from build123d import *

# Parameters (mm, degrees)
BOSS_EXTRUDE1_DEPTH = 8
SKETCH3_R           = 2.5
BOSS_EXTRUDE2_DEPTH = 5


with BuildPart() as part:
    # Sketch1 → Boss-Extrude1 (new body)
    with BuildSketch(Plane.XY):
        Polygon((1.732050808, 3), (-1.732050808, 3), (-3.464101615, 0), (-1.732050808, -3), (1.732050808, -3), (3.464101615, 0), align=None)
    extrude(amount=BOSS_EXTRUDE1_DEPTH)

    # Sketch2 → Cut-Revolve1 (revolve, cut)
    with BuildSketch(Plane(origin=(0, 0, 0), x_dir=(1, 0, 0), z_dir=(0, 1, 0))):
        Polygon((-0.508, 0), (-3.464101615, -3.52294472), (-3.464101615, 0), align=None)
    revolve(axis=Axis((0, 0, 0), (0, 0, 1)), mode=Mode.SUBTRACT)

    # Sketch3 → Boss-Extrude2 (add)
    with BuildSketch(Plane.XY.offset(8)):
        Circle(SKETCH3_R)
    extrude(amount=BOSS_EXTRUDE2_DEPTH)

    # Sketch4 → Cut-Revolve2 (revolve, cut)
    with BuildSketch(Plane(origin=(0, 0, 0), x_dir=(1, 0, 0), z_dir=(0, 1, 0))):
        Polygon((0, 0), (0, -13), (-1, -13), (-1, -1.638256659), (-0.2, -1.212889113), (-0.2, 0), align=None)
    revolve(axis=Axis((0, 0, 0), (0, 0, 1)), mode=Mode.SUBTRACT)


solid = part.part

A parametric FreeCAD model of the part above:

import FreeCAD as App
import Part
import Sketcher
Q = App.Units.Quantity

doc = App.newDocument("Part")
params = doc.addObject("Spreadsheet::Sheet", "Params")
for row, (alias, value) in enumerate([
    ("pad1_length", "8 mm"),
    ("groove_angle", "360 deg"),
    ("sketch3_diameter", "5 mm"),
    ("pad2_length", "5 mm"),
    ("sketch4_width", "1 mm"),
    ("sketch4_height", "13 mm"),
    ("sketch4_width2", "0.2 mm"),
    ("groove2_angle", "360 deg"),
], start=1):
    params.set(f"A{row}", alias)
    params.set(f"B{row}", "=" + value)
    params.setAlias(f"B{row}", alias)

body = doc.addObject("PartDesign::Body", "Body")

# Sketch on XY plane
sketch1 = doc.addObject("Sketcher::SketchObject", "Sketch")
body.addObject(sketch1)
sketch1.AttachmentSupport = (doc.XY_Plane, [""])
sketch1.MapMode = "FlatFace"
sketch1.addGeometry([
    Part.LineSegment(App.Vector(1.7, 3, 0), App.Vector(-1.7, 3, 0)),  # 0
    Part.LineSegment(App.Vector(-1.7, 3, 0), App.Vector(-3.5, 0, 0)),  # 1
    Part.LineSegment(App.Vector(-3.5, 0, 0), App.Vector(-1.7, -3, 0)),  # 2
    Part.LineSegment(App.Vector(-1.7, -3, 0), App.Vector(1.7, -3, 0)),  # 3
    Part.LineSegment(App.Vector(1.7, -3, 0), App.Vector(3.5, 0, 0)),  # 4
    Part.LineSegment(App.Vector(3.5, 0, 0), App.Vector(1.7, 3, 0)),  # 5
], False)
sketch1.addConstraint([
    Sketcher.Constraint("Coincident", 0, 2, 1, 1),
    Sketcher.Constraint("Coincident", 1, 2, 2, 1),
    Sketcher.Constraint("Coincident", 2, 2, 3, 1),
    Sketcher.Constraint("Coincident", 3, 2, 4, 1),
    Sketcher.Constraint("Coincident", 4, 2, 5, 1),
    Sketcher.Constraint("Coincident", 5, 2, 0, 1),
    Sketcher.Constraint("Horizontal", 0),
    Sketcher.Constraint("Horizontal", 3),
    Sketcher.Constraint("Symmetric", 0, 2, 3, 2, -1, 1),
    Sketcher.Constraint("Symmetric", 1, 2, 4, 2, -1, 1),
    Sketcher.Constraint("PointOnObject", 1, 2, -1),
    Sketcher.Constraint("Parallel", 2, 5),
    Sketcher.Constraint("Vertical", 0, 2, 2, 2),
    Sketcher.Constraint("Angle", 1, Q("-120 deg")),
    Sketcher.Constraint("DistanceY", -1, 1, 0, 2, Q("3 mm")),
    Sketcher.Constraint("DistanceX", 0, 2, 0, 1, Q("3.464102 mm")),
])
pad1 = doc.addObject("PartDesign::Pad", "Pad")
body.addObject(pad1)
pad1.Profile = sketch1
pad1.setExpression("Length", "Params.pad1_length")

# Sketch on XZ plane
sketch2 = doc.addObject("Sketcher::SketchObject", "Sketch001")
body.addObject(sketch2)
sketch2.AttachmentSupport = (doc.XZ_Plane, [""])
sketch2.MapMode = "FlatFace"
sketch2.addGeometry([
    Part.LineSegment(App.Vector(-3.5, 3.5, 0), App.Vector(-0.5, 0, 0)),
    Part.LineSegment(App.Vector(-0.5, 0, 0), App.Vector(-3.5, 0, 0)),
    Part.LineSegment(App.Vector(-3.5, 0, 0), App.Vector(-3.5, 3.5, 0)),
], False)
sketch2.addConstraint([
    Sketcher.Constraint("Coincident", 0, 2, 1, 1),
    Sketcher.Constraint("Coincident", 1, 2, 2, 1),
    Sketcher.Constraint("Coincident", 2, 2, 0, 1),
    Sketcher.Constraint("Horizontal", 1),
    Sketcher.Constraint("Vertical", 2),
    Sketcher.Constraint("PointOnObject", 0, 2, -1),
    Sketcher.Constraint("Angle", 0, Q("-50 deg")),
    Sketcher.Constraint("DistanceX", 1, 2, 1, 1, Q("2.956102 mm")),
    Sketcher.Constraint("DistanceX", 0, 2, -1, 1, Q("0.508 mm")),
])
groove = doc.addObject("PartDesign::Groove", "Groove")
body.addObject(groove)
groove.Profile = sketch2
groove.ReferenceAxis = (sketch2, ["V_Axis"])
groove.setExpression("Angle", "Params.groove_angle")

# Sketch on XY plane
sketch3 = doc.addObject("Sketcher::SketchObject", "Sketch002")
body.addObject(sketch3)
sketch3.AttachmentSupport = (doc.XY_Plane, [""])
sketch3.MapMode = "FlatFace"
sketch3.AttachmentOffset = App.Placement(App.Vector(0, 0, 8), App.Rotation())
sketch3.addGeometry(Part.Circle(App.Vector(0, 0, 0), App.Vector(0, 0, 1), 2.5), False)
sketch3.addConstraint([
    Sketcher.Constraint("Coincident", 0, 3, -1, 1),
    Sketcher.Constraint("Diameter", 0, Q("5 mm")),
])
sketch3.setExpression("Constraints[1]", "Params.sketch3_diameter")
pad2 = doc.addObject("PartDesign::Pad", "Pad001")
body.addObject(pad2)
pad2.Profile = sketch3
pad2.setExpression("Length", "Params.pad2_length")

# Sketch on XZ plane
sketch4 = doc.addObject("Sketcher::SketchObject", "Sketch003")
body.addObject(sketch4)
sketch4.AttachmentSupport = (doc.XZ_Plane, [""])
sketch4.MapMode = "FlatFace"
sketch4.addGeometry([
    Part.LineSegment(App.Vector(0, 13, 0), App.Vector(0, 0, 0)),  # 0
    Part.LineSegment(App.Vector(0, 0, 0), App.Vector(-0.2, 0, 0)),  # 1
    Part.LineSegment(App.Vector(-0.2, 0, 0), App.Vector(-0.2, 1.21, 0)),  # 2
    Part.LineSegment(App.Vector(-0.2, 1.21, 0), App.Vector(-1, 1.64, 0)),  # 3
    Part.LineSegment(App.Vector(-1, 1.64, 0), App.Vector(-1, 13, 0)),  # 4
    Part.LineSegment(App.Vector(-1, 13, 0), App.Vector(0, 13, 0)),  # 5
], False)
sketch4.addConstraint([
    Sketcher.Constraint("Coincident", 0, 2, 1, 1),
    Sketcher.Constraint("Coincident", 1, 2, 2, 1),
    Sketcher.Constraint("Coincident", 2, 2, 3, 1),
    Sketcher.Constraint("Coincident", 3, 2, 4, 1),
    Sketcher.Constraint("Coincident", 4, 2, 5, 1),
    Sketcher.Constraint("Coincident", 5, 2, 0, 1),
    Sketcher.Constraint("Vertical", 0),
    Sketcher.Constraint("Horizontal", 1),
    Sketcher.Constraint("Vertical", 2),
    Sketcher.Constraint("Vertical", 4),
    Sketcher.Constraint("Horizontal", 5),
    Sketcher.Constraint("Coincident", 0, 2, -1, 1),
    Sketcher.Constraint("DistanceX", 5, 1, 5, 2, Q("1 mm")),
    Sketcher.Constraint("DistanceY", 0, 2, 0, 1, Q("13 mm")),
    Sketcher.Constraint("Angle", 3, Q("152 deg")),
    Sketcher.Constraint("DistanceX", 1, 2, 1, 1, Q("0.2 mm")),
    Sketcher.Constraint("DistanceY", 2, 1, 2, 2, Q("1.212889 mm")),
])
sketch4.setExpression("Constraints[12]", "Params.sketch4_width")
sketch4.setExpression("Constraints[13]", "Params.sketch4_height")
sketch4.setExpression("Constraints[15]", "Params.sketch4_width2")
groove2 = doc.addObject("PartDesign::Groove", "Groove001")
body.addObject(groove2)
groove2.Profile = sketch4
groove2.ReferenceAxis = (sketch4, ["V_Axis"])
groove2.setExpression("Angle", "Params.groove2_angle")

doc.recompute()
